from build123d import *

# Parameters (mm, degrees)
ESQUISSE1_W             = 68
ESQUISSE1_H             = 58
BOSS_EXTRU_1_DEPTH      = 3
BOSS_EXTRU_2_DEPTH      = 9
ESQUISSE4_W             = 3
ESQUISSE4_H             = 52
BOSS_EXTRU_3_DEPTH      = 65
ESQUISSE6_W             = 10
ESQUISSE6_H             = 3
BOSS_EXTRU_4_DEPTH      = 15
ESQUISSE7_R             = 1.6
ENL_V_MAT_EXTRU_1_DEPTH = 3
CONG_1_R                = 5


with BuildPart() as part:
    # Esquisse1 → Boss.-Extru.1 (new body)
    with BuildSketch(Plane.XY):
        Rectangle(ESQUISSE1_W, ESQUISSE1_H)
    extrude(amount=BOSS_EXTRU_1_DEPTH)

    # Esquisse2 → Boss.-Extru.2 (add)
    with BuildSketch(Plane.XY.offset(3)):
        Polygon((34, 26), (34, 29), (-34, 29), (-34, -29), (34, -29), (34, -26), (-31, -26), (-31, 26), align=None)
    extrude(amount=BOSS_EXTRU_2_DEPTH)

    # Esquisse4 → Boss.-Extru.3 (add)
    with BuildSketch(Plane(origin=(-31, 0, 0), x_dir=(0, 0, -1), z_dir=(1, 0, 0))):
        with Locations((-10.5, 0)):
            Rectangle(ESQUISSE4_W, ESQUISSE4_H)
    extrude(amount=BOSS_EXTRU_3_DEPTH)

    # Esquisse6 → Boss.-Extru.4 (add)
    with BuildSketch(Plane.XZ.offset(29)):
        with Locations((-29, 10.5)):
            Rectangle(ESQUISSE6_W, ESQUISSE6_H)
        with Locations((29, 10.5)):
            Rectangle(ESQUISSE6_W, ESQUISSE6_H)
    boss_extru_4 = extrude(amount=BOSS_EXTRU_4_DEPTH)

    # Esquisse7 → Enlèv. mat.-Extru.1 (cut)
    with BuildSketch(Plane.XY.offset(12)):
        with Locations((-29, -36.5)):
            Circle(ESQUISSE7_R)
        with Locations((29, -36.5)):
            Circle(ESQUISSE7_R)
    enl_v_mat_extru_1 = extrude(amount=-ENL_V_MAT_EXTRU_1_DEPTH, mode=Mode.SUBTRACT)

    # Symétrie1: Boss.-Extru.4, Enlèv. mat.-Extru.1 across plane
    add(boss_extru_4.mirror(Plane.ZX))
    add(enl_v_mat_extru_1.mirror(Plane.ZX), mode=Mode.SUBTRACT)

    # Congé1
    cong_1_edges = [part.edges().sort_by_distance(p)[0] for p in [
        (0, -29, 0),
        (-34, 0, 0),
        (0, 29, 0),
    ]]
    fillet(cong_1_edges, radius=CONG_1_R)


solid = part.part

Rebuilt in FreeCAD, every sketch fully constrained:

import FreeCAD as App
import Part
import Sketcher
Q = App.Units.Quantity


def edges_at(feature, points):
    """Names of the edges that pass closest to the given points."""
    edges = feature.Shape.Edges
    near = lambda p: min(range(len(edges)), key=lambda i: edges[i].distToShape(Part.Vertex(*p))[0])
    return sorted({f"Edge{near(p) + 1}" for p in points})


def add_polygon(sketch, points):
    """Adds a closed chain of lines whose ends are joined by coincident constraints."""
    first, n = sketch.GeometryCount, len(points)
    for a, b in zip(points, points[1:] + points[:1]):
        sketch.addGeometry(Part.LineSegment(App.Vector(*a, 0), App.Vector(*b, 0)), False)
    for i in range(n):
        sketch.addConstraint(Sketcher.Constraint("Coincident", first + i, 2, first + (i + 1) % n, 1))

doc = App.newDocument("Part")
body = doc.addObject("PartDesign::Body", "Body")

# Sketch on XY plane
sketch1 = body.newObject("Sketcher::SketchObject", "Sketch")
sketch1.AttachmentSupport = (doc.getObject("XY_Plane"), [""])
sketch1.MapMode = "FlatFace"
add_polygon(sketch1, [(-34, 29), (-34, -29), (34, -29), (34, 29)])  # lines 0-3
sketch1.addConstraint(Sketcher.Constraint("Vertical", 0))
sketch1.addConstraint(Sketcher.Constraint("Horizontal", 1))
sketch1.addConstraint(Sketcher.Constraint("Vertical", 2))
sketch1.addConstraint(Sketcher.Constraint("Horizontal", 3))
sketch1.addConstraint(Sketcher.Constraint("Symmetric", 0, 2, 2, 2, -1, 1))
sketch1.addConstraint(Sketcher.Constraint("DistanceX", 1, 1, 1, 2, Q("68 mm")))
sketch1.addConstraint(Sketcher.Constraint("DistanceY", 0, 2, 0, 1, Q("58 mm")))
pad1 = body.newObject("PartDesign::Pad", "Pad")
pad1.Profile = sketch1
pad1.Length = 3

# Sketch on XY plane
sketch2 = body.newObject("Sketcher::SketchObject", "Sketch001")
sketch2.AttachmentSupport = (doc.getObject("XY_Plane"), [""])
sketch2.MapMode = "FlatFace"
sketch2.AttachmentOffset = App.Placement(App.Vector(0, 0, 3), App.Rotation())
add_polygon(sketch2, [(34, 26), (34, 29), (-34, 29), (-34, -29), (34, -29), (34, -26), (-31, -26), (-31, 26)])  # lines 0-7
sketch2.addConstraint(Sketcher.Constraint("Vertical", 0))
sketch2.addConstraint(Sketcher.Constraint("Horizontal", 1))
sketch2.addConstraint(Sketcher.Constraint("Vertical", 2))
sketch2.addConstraint(Sketcher.Constraint("Horizontal", 3))
sketch2.addConstraint(Sketcher.Constraint("Vertical", 4))
sketch2.addConstraint(Sketcher.Constraint("Horizontal", 5))
sketch2.addConstraint(Sketcher.Constraint("Vertical", 6))
sketch2.addConstraint(Sketcher.Constraint("Horizontal", 7))
sketch2.addConstraint(Sketcher.Constraint("Symmetric", 0, 2, 2, 2, -1, 1))
sketch2.addConstraint(Sketcher.Constraint("Symmetric", 4, 2, 7, 2, -1))
sketch2.addConstraint(Sketcher.Constraint("DistanceX", 1, 2, 1, 1, Q("68 mm")))
sketch2.addConstraint(Sketcher.Constraint("DistanceX", 5, 2, 5, 1, Q("65 mm")))
sketch2.addConstraint(Sketcher.Constraint("DistanceY", 0, 1, 0, 2, Q("3 mm")))
sketch2.addConstraint(Sketcher.Constraint("DistanceY", 2, 2, 2, 1, Q("58 mm")))
pad2 = body.newObject("PartDesign::Pad", "Pad001")
pad2.Profile = sketch2
pad2.Length = 9

# Sketch on YZ plane
sketch3 = body.newObject("Sketcher::SketchObject", "Sketch002")
sketch3.AttachmentSupport = (doc.getObject("YZ_Plane"), [""])
sketch3.MapMode = "FlatFace"
sketch3.AttachmentOffset = App.Placement(App.Vector(0, 0, -31), App.Rotation())
add_polygon(sketch3, [(26, 12), (-26, 12), (-26, 9), (26, 9)])  # lines 0-3
sketch3.addConstraint(Sketcher.Constraint("Horizontal", 0))
sketch3.addConstraint(Sketcher.Constraint("Vertical", 1))
sketch3.addConstraint(Sketcher.Constraint("Horizontal", 2))
sketch3.addConstraint(Sketcher.Constraint("Vertical", 3))
sketch3.addConstraint(Sketcher.Constraint("DistanceX", 0, 2, 0, 1, Q("52 mm")))
sketch3.addConstraint(Sketcher.Constraint("DistanceY", 1, 2, 1, 1, Q("3 mm")))
sketch3.addConstraint(Sketcher.Constraint("DistanceX", 0, 2, -1, 1, Q("26 mm")))
sketch3.addConstraint(Sketcher.Constraint("DistanceY", -1, 1, 0, 2, Q("12 mm")))
pad3 = body.newObject("PartDesign::Pad", "Pad002")
pad3.Profile = sketch3
pad3.Length = 65

# Sketch on XZ plane
sketch4 = body.newObject("Sketcher::SketchObject", "Sketch003")
sketch4.AttachmentSupport = (doc.getObject("XZ_Plane"), [""])
sketch4.MapMode = "FlatFace"
sketch4.AttachmentOffset = App.Placement(App.Vector(0, 0, 29), App.Rotation())
add_polygon(sketch4, [(-34, 12), (-34, 9), (-24, 9), (-24, 12)])  # lines 0-3
add_polygon(sketch4, [(24, 12), (24, 9), (34, 9), (34, 12)])  # lines 4-7
sketch4.addConstraint(Sketcher.Constraint("Vertical", 0))
sketch4.addConstraint(Sketcher.Constraint("Horizontal", 1))
sketch4.addConstraint(Sketcher.Constraint("Vertical", 2))
sketch4.addConstraint(Sketcher.Constraint("Horizontal", 3))
sketch4.addConstraint(Sketcher.Constraint("Vertical", 4))
sketch4.addConstraint(Sketcher.Constraint("Horizontal", 5))
sketch4.addConstraint(Sketcher.Constraint("Vertical", 6))
sketch4.addConstraint(Sketcher.Constraint("Horizontal", 7))
sketch4.addConstraint(Sketcher.Constraint("Symmetric", 1, 2, 4, 2, -2))
sketch4.addConstraint(Sketcher.Constraint("Symmetric", 3, 2, 6, 2, -2))
sketch4.addConstraint(Sketcher.Constraint("DistanceX", 1, 1, 1, 2, Q("10 mm")))
sketch4.addConstraint(Sketcher.Constraint("DistanceY", 0, 2, 0, 1, Q("3 mm")))
sketch4.addConstraint(Sketcher.Constraint("DistanceX", 0, 2, -1, 1, Q("34 mm")))
sketch4.addConstraint(Sketcher.Constraint("DistanceY", -1, 1, 0, 2, Q("9 mm")))
pad4 = body.newObject("PartDesign::Pad", "Pad003")
pad4.Profile = sketch4
pad4.Length = 15

# Sketch on XY plane
sketch5 = body.newObject("Sketcher::SketchObject", "Sketch004")
sketch5.AttachmentSupport = (doc.getObject("XY_Plane"), [""])
sketch5.MapMode = "FlatFace"
sketch5.AttachmentOffset = App.Placement(App.Vector(0, 0, 12), App.Rotation())
sketch5.addGeometry(Part.Circle(App.Vector(-29, -36.5, 0), App.Vector(0, 0, 1), 1.6), False)
sketch5.addGeometry(Part.Circle(App.Vector(29, -36.5, 0), App.Vector(0, 0, 1), 1.6), False)
sketch5.addConstraint(Sketcher.Constraint("Equal", 0, 1))
sketch5.addConstraint(Sketcher.Constraint("Symmetric", 0, 3, 1, 3, -2))
sketch5.addConstraint(Sketcher.Constraint("Diameter", 0, Q("3.2 mm")))
sketch5.addConstraint(Sketcher.Constraint("DistanceX", 0, 3, -1, 1, Q("29 mm")))
sketch5.addConstraint(Sketcher.Constraint("DistanceY", 0, 3, -1, 1, Q("36.5 mm")))
pocket1 = body.newObject("PartDesign::Pocket", "Pocket")
pocket1.Profile = sketch5
pocket1.Length = 3
doc.recompute()

mirrored = body.newObject("PartDesign::Mirrored", "Mirrored")
mirrored.Originals = [pad4, pocket1]
mirrored.MirrorPlane = (doc.getObject("XZ_Plane"), [""])
body.Tip = mirrored
doc.recompute()

fillet = body.newObject("PartDesign::Fillet", "Fillet")
fillet.Base = (mirrored, edges_at(mirrored, [(0, -29, 0), (-34, 0, 0), (0, 29, 0)]))
fillet.Radius = 5

doc.recompute()
